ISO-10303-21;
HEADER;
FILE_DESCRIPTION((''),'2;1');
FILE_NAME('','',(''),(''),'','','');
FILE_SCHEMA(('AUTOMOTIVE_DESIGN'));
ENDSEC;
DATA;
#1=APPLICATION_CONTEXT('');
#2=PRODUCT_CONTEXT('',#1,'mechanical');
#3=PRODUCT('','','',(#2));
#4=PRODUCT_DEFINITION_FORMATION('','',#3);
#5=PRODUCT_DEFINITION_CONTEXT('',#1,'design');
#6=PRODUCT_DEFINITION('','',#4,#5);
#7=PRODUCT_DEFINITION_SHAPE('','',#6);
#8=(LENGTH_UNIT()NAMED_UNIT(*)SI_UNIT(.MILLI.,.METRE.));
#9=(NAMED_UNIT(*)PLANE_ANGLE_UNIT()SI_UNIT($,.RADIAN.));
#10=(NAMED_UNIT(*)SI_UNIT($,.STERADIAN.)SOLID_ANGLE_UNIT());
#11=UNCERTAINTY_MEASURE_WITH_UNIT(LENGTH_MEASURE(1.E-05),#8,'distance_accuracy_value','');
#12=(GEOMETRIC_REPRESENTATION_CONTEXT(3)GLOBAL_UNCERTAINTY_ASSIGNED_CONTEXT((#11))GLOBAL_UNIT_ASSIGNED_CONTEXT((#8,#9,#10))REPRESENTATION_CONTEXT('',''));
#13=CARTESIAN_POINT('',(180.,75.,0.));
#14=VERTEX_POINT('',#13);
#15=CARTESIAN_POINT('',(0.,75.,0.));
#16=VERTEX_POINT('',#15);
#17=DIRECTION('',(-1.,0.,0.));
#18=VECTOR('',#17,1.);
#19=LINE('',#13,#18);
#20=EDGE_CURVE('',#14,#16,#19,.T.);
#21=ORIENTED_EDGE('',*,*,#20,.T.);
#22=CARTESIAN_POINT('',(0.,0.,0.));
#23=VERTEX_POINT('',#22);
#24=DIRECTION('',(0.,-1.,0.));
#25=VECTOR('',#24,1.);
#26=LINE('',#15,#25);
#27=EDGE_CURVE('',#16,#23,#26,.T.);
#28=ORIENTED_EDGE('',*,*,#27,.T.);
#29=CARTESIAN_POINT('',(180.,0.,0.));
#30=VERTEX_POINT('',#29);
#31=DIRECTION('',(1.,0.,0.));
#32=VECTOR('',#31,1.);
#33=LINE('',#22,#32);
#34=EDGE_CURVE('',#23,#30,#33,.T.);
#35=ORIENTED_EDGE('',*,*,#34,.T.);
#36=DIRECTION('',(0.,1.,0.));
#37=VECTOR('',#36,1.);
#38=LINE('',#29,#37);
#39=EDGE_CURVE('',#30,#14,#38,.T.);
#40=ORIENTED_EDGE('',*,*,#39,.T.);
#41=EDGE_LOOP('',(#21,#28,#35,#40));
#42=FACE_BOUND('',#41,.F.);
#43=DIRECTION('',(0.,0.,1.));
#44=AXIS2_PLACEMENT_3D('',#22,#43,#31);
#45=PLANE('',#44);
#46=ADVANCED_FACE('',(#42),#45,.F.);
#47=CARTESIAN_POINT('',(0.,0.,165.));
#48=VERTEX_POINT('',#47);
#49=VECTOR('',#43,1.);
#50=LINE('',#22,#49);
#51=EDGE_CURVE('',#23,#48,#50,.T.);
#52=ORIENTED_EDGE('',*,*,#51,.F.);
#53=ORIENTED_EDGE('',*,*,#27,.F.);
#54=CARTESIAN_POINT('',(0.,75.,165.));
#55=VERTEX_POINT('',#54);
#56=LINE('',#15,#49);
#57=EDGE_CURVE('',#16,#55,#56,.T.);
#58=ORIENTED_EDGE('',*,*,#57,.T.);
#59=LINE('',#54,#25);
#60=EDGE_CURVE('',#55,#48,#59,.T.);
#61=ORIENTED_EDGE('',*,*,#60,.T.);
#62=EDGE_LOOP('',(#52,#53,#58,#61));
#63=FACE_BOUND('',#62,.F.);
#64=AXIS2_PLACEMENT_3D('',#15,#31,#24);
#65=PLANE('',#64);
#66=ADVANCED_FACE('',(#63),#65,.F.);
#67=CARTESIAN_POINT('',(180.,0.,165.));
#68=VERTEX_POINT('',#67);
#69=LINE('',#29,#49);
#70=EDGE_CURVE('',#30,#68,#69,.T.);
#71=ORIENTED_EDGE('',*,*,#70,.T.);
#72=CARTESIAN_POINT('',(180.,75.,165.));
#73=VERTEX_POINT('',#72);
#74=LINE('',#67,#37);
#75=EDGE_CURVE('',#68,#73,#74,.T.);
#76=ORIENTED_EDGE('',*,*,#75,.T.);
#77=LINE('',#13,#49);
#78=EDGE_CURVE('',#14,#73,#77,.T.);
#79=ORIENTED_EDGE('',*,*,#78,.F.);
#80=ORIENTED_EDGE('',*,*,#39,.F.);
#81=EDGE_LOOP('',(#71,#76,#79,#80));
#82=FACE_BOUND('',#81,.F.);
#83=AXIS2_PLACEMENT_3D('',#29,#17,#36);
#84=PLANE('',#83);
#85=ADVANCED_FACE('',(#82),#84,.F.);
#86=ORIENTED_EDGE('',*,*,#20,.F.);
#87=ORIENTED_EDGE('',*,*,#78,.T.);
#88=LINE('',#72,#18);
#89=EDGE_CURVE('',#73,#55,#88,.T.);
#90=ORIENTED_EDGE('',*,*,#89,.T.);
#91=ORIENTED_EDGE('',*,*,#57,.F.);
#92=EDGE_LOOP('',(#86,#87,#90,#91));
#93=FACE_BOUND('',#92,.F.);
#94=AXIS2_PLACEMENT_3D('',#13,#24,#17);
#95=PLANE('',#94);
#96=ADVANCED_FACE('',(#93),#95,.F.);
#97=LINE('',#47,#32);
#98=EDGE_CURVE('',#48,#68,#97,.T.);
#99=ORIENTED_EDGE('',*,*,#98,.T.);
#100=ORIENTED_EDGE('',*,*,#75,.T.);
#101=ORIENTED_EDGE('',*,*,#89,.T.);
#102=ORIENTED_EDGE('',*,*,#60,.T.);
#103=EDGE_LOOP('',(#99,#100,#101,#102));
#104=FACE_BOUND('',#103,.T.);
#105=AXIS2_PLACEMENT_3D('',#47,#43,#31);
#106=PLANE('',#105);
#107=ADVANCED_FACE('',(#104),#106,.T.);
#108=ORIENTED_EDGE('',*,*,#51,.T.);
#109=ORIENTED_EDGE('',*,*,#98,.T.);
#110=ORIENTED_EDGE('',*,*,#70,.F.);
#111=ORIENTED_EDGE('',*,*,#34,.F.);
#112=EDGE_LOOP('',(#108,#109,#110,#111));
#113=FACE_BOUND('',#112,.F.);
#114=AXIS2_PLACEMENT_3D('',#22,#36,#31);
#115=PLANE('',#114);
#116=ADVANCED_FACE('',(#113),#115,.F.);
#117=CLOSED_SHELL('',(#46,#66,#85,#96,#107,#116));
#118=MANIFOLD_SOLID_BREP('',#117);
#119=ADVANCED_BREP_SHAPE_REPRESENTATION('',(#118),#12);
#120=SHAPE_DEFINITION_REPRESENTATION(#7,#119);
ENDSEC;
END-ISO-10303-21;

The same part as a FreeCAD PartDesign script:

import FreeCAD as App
import Part
import Sketcher

V = App.Vector
Q = App.Units.Quantity


def add_polygon(sketch, points):
    """Adds a closed chain of lines whose ends are joined by coincident constraints."""
    first, n = sketch.GeometryCount, len(points)
    for a, b in zip(points, points[1:] + points[:1]):
        sketch.addGeometry(Part.LineSegment(App.Vector(*a, 0), App.Vector(*b, 0)), False)
    for i in range(n):
        sketch.addConstraint(Sketcher.Constraint("Coincident", first + i, 2, first + (i + 1) % n, 1))

doc = App.newDocument("Part")
body = doc.addObject("PartDesign::Body", "Body")

# Sketch on XY plane
sketch1 = doc.addObject("Sketcher::SketchObject", "Sketch")
body.addObject(sketch1)
sketch1.AttachmentSupport = (doc.XY_Plane, [""])
sketch1.MapMode = "FlatFace"
add_polygon(sketch1, [(0, 75), (0, 0), (180, 0), (180, 75)])  # lines 0-3
sketch1.addConstraint([
    Sketcher.Constraint("Vertical", 0),
    Sketcher.Constraint("Horizontal", 1),
    Sketcher.Constraint("Vertical", 2),
    Sketcher.Constraint("Horizontal", 3),
    Sketcher.Constraint("Coincident", 0, 2, -1, 1),
    Sketcher.Constraint("DistanceX", 1, 1, 1, 2, Q("180 mm")),
    Sketcher.Constraint("DistanceY", 0, 2, 0, 1, Q("75 mm")),
])
pad1 = doc.addObject("PartDesign::Pad", "Pad")
body.addObject(pad1)
pad1.Profile = sketch1
pad1.Length = 165

doc.recompute()
